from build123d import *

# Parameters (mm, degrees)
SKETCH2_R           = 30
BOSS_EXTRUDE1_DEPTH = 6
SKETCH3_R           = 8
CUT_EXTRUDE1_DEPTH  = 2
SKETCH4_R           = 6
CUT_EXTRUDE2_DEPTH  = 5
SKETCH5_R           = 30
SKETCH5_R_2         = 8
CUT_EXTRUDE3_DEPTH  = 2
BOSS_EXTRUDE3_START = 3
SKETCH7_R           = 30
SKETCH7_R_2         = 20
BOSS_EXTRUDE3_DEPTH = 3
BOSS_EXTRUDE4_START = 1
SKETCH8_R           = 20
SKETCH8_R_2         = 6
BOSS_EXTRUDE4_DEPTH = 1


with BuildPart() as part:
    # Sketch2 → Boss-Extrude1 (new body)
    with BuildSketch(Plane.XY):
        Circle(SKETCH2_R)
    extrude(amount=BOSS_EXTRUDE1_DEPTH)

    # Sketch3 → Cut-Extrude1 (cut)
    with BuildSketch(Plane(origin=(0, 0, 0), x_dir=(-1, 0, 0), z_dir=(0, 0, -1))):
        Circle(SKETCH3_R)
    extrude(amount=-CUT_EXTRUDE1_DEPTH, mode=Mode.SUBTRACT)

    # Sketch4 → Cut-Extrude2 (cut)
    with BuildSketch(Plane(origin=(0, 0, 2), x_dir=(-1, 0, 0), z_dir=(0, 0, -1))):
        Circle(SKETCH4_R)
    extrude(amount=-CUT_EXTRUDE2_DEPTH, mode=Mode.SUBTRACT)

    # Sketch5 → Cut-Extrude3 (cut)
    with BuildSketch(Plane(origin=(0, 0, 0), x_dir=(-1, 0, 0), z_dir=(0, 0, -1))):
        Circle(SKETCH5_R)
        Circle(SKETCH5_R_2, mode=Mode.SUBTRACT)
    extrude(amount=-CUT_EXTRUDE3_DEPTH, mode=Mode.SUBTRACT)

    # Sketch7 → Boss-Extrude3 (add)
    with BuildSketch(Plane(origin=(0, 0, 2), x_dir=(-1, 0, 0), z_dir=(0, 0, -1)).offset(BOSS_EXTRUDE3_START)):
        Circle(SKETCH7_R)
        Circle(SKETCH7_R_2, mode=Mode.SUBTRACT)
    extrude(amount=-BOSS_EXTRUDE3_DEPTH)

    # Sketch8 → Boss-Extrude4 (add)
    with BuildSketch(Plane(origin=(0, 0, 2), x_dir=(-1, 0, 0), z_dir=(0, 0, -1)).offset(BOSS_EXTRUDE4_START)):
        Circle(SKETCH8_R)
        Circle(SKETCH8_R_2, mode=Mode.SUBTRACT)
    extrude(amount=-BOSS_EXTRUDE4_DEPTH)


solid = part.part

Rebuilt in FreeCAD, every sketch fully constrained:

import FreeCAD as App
import Part
import Sketcher
from FreeCAD import Vector
Q = App.Units.Quantity

doc = App.newDocument("Part")
body = doc.addObject("PartDesign::Body", "Body")

# Sketch on XY plane
sketch1 = body.newObject("Sketcher::SketchObject", "Sketch")
sketch1.AttachmentSupport = (doc.getObject("XY_Plane"), [""])
sketch1.MapMode = "FlatFace"
sketch1.addGeometry(Part.Circle(Vector(0, 0, 0), Vector(0, 0, 1), 30), False)
sketch1.addConstraint([
    Sketcher.Constraint("Coincident", 0, 3, -1, 1),
    Sketcher.Constraint("Diameter", 0, Q("60 mm")),
])
pad1 = body.newObject("PartDesign::Pad", "Pad")
pad1.Profile = sketch1
pad1.Length = 6

# Sketch on XY plane
sketch2 = body.newObject("Sketcher::SketchObject", "Sketch001")
sketch2.AttachmentSupport = (doc.getObject("XY_Plane"), [""])
sketch2.MapMode = "FlatFace"
sketch2.addGeometry(Part.Circle(Vector(0, 0, 0), Vector(0, 0, 1), 8), False)
sketch2.addConstraint([
    Sketcher.Constraint("Coincident", 0, 3, -1, 1),
    Sketcher.Constraint("Diameter", 0, Q("16 mm")),
])
pocket1 = body.newObject("PartDesign::Pocket", "Pocket")
pocket1.Profile = sketch2
pocket1.Length = 2
pocket1.Reversed = True

# Sketch on XY plane
sketch3 = body.newObject("Sketcher::SketchObject", "Sketch002")
sketch3.AttachmentSupport = (doc.getObject("XY_Plane"), [""])
sketch3.MapMode = "FlatFace"
sketch3.AttachmentOffset = App.Placement(Vector(0, 0, 2), App.Rotation())
sketch3.addGeometry(Part.Circle(Vector(0, 0, 0), Vector(0, 0, 1), 6), False)
sketch3.addConstraint([
    Sketcher.Constraint("Coincident", 0, 3, -1, 1),
    Sketcher.Constraint("Diameter", 0, Q("12 mm")),
])
pocket2 = body.newObject("PartDesign::Pocket", "Pocket001")
pocket2.Profile = sketch3
pocket2.Length = 5
pocket2.Reversed = True

# Sketch on XY plane
sketch4 = body.newObject("Sketcher::SketchObject", "Sketch003")
sketch4.AttachmentSupport = (doc.getObject("XY_Plane"), [""])
sketch4.MapMode = "FlatFace"
sketch4.addGeometry([
    Part.Circle(Vector(0, 0, 0), Vector(0, 0, 1), 30),
    Part.Circle(Vector(0, 0, 0), Vector(0, 0, 1), 8),
], False)
sketch4.addConstraint([
    Sketcher.Constraint("Coincident", 0, 3, -1, 1),
    Sketcher.Constraint("Coincident", 1, 3, -1, 1),
    Sketcher.Constraint("Diameter", 0, Q("60 mm")),
    Sketcher.Constraint("Diameter", 1, Q("16 mm")),
])
pocket3 = body.newObject("PartDesign::Pocket", "Pocket002")
pocket3.Profile = sketch4
pocket3.Length = 2
pocket3.Reversed = True

# Sketch on XY plane
sketch5 = body.newObject("Sketcher::SketchObject", "Sketch004")
sketch5.AttachmentSupport = (doc.getObject("XY_Plane"), [""])
sketch5.MapMode = "FlatFace"
sketch5.AttachmentOffset = App.Placement(Vector(0, 0, -1), App.Rotation())
sketch5.addGeometry([
    Part.Circle(Vector(0, 0, 0), Vector(0, 0, 1), 30),
    Part.Circle(Vector(0, 0, 0), Vector(0, 0, 1), 20),
], False)
sketch5.addConstraint([
    Sketcher.Constraint("Coincident", 0, 3, -1, 1),
    Sketcher.Constraint("Coincident", 1, 3, -1, 1),
    Sketcher.Constraint("Diameter", 0, Q("60 mm")),
    Sketcher.Constraint("Diameter", 1, Q("40 mm")),
])
pad2 = body.newObject("PartDesign::Pad", "Pad001")
pad2.Profile = sketch5
pad2.Length = 3

# Sketch on XY plane
sketch6 = body.newObject("Sketcher::SketchObject", "Sketch005")
sketch6.AttachmentSupport = (doc.getObject("XY_Plane"), [""])
sketch6.MapMode = "FlatFace"
sketch6.AttachmentOffset = App.Placement(Vector(0, 0, 1), App.Rotation())
sketch6.addGeometry([
    Part.Circle(Vector(0, 0, 0), Vector(0, 0, 1), 20),
    Part.Circle(Vector(0, 0, 0), Vector(0, 0, 1), 6),
], False)
sketch6.addConstraint([
    Sketcher.Constraint("Coincident", 0, 3, -1, 1),
    Sketcher.Constraint("Coincident", 1, 3, -1, 1),
    Sketcher.Constraint("Diameter", 0, Q("40 mm")),
    Sketcher.Constraint("Diameter", 1, Q("12 mm")),
])
pad3 = body.newObject("PartDesign::Pad", "Pad002")
pad3.Profile = sketch6
pad3.Length = 1

doc.recompute()
